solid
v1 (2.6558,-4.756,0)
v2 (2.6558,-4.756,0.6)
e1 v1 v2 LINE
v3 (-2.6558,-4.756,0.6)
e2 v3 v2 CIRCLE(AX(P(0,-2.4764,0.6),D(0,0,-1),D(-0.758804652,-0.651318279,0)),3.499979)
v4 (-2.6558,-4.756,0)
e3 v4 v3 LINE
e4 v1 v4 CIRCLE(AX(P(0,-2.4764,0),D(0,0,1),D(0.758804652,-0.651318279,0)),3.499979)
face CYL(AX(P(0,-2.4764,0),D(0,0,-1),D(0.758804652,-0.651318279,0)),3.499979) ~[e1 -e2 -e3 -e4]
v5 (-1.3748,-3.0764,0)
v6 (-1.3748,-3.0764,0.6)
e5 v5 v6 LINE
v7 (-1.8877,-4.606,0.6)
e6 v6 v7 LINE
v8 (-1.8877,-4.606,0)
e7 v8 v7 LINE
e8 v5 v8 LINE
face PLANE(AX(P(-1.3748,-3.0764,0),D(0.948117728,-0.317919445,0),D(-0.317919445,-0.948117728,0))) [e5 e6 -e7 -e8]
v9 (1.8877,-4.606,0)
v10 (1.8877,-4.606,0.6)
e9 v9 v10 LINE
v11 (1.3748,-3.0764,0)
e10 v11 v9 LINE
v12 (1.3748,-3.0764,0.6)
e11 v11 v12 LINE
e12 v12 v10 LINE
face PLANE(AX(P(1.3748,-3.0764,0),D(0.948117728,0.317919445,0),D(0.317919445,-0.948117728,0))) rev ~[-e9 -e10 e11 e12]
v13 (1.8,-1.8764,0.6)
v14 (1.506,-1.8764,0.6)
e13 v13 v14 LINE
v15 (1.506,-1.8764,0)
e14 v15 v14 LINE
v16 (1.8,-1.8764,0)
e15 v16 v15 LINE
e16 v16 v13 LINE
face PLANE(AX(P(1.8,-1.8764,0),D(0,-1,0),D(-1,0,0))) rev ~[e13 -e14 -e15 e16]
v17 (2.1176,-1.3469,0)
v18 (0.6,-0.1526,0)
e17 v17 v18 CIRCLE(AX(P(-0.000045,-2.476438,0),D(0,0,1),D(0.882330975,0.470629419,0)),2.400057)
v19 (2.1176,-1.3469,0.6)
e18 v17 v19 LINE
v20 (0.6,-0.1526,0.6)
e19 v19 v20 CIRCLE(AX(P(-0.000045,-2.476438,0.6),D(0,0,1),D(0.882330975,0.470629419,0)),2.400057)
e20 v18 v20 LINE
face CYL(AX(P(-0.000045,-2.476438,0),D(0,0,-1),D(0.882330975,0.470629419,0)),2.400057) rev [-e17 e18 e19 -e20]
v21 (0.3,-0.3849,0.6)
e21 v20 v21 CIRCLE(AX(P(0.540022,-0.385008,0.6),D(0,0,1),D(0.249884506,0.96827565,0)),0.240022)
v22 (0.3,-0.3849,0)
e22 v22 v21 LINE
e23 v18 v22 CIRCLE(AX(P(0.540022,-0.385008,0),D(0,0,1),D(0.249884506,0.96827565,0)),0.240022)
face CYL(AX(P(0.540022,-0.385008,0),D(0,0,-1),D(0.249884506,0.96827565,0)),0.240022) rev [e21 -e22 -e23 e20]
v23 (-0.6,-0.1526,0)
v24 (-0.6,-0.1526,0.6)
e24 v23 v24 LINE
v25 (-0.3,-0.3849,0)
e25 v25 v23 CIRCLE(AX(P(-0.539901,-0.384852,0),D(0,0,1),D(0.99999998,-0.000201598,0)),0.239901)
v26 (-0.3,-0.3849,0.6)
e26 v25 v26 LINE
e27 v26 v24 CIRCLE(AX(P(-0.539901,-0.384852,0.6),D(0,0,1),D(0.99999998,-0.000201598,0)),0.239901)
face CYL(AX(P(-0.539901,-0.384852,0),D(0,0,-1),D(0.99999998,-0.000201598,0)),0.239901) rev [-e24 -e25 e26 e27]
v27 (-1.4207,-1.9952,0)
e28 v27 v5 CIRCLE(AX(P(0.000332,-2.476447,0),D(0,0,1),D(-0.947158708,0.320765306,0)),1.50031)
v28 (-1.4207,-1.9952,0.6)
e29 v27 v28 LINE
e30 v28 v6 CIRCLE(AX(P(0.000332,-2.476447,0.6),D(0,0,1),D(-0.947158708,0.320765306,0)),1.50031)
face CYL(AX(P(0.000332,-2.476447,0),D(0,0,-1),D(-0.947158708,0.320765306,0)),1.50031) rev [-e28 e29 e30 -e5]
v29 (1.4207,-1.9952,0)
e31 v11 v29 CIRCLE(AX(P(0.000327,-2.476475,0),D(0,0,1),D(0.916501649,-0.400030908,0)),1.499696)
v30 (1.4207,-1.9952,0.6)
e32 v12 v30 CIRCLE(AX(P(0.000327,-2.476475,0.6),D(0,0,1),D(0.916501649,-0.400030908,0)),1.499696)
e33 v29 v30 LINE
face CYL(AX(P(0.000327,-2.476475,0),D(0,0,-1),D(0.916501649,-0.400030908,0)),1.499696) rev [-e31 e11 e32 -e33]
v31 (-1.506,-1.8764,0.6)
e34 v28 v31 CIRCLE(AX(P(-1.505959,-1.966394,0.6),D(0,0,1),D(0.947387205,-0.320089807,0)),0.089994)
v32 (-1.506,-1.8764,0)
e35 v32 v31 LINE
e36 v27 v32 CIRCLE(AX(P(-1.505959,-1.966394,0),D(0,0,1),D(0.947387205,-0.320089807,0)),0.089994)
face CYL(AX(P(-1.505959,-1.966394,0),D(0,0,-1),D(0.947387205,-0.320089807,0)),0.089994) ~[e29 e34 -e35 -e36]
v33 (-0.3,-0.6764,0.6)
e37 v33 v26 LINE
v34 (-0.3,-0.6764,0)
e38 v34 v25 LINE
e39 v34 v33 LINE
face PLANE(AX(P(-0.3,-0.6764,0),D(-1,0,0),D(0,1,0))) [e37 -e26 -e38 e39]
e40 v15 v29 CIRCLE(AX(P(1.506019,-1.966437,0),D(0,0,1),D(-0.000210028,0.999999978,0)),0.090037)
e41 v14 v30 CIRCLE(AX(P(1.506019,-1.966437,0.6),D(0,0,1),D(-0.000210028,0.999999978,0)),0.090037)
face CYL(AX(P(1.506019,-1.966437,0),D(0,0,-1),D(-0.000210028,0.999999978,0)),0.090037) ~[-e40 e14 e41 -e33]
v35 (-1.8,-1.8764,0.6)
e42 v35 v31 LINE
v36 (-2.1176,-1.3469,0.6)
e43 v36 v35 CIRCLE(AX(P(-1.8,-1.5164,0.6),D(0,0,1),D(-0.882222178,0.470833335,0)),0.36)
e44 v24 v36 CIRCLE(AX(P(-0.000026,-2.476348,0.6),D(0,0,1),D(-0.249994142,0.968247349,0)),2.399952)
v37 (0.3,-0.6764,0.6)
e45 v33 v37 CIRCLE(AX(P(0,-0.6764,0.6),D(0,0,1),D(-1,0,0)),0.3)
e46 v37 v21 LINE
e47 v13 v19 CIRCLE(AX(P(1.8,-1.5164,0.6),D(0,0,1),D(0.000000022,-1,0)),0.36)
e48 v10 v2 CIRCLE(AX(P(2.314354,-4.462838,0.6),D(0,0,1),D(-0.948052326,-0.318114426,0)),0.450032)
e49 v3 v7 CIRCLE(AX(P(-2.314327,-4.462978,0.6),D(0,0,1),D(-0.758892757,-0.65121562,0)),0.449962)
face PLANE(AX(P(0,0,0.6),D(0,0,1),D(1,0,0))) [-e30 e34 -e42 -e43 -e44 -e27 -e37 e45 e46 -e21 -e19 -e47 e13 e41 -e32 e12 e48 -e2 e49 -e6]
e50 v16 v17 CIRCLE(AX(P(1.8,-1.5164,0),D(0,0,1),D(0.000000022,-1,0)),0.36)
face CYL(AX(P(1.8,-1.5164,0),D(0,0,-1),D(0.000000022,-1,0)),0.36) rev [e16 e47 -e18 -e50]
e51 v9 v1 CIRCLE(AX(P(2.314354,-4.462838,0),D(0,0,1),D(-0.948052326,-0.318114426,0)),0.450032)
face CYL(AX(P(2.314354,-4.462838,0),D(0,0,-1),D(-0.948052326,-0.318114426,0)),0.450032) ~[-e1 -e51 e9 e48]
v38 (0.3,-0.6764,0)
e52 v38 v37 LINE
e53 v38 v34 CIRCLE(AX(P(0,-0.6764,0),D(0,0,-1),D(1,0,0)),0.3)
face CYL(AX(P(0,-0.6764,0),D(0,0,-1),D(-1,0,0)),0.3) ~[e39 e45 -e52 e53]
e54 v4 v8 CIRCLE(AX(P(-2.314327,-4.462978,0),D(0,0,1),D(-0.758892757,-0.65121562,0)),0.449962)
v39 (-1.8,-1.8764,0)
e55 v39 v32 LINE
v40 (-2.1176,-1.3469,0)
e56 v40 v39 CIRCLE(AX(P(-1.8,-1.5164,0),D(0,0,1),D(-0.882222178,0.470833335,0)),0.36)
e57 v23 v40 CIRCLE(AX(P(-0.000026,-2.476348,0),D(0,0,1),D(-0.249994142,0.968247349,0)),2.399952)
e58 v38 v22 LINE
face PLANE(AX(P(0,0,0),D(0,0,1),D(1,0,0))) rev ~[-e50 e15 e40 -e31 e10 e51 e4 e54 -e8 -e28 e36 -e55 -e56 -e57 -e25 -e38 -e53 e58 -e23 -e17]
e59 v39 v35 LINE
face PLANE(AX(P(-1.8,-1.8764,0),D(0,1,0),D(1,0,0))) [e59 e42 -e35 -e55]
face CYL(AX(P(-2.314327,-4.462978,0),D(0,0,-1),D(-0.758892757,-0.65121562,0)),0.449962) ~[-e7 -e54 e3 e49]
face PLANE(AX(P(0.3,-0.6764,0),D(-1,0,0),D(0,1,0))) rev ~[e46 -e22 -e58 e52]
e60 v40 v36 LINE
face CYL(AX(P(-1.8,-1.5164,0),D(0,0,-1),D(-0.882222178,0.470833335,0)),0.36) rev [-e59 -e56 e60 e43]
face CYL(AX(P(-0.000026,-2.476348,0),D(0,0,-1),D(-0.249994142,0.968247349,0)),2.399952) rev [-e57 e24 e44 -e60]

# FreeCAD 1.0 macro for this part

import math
import FreeCAD as App
import Part
import Sketcher
Q = App.Units.Quantity

doc = App.newDocument("Part")
body = doc.addObject("PartDesign::Body", "Body")

# Sketch on XY plane
sketch1 = doc.addObject("Sketcher::SketchObject", "Sketch")
body.addObject(sketch1)
sketch1.AttachmentSupport = (doc.XY_Plane, [""])
sketch1.MapMode = "FlatFace"
sketch1.addGeometry(Part.ArcOfCircle(Part.Circle(App.Vector(-2.31, -4.46, 0), App.Vector(0, 0, 1), 0.45), math.radians(-139), math.radians(-19)), False)
sketch1.addGeometry(Part.LineSegment(App.Vector(-1.89, -4.61, 0), App.Vector(-1.37, -3.08, 0)), False)
sketch1.addGeometry(Part.ArcOfCircle(Part.Circle(App.Vector(0, -2.48, 0), App.Vector(0, 0, 1), 1.5), math.radians(161), math.radians(204)), False)
sketch1.addGeometry(Part.ArcOfCircle(Part.Circle(App.Vector(-1.51, -1.97, 0), App.Vector(0, 0, 1), 0.09), math.radians(-19), math.radians(90)), False)
sketch1.addGeometry(Part.LineSegment(App.Vector(-1.51, -1.88, 0), App.Vector(-1.8, -1.88, 0)), False)
sketch1.addGeometry(Part.ArcOfCircle(Part.Circle(App.Vector(-1.8, -1.52, 0), App.Vector(0, 0, 1), 0.36), math.radians(152), math.radians(270)), False)
sketch1.addGeometry(Part.ArcOfCircle(Part.Circle(App.Vector(0, -2.48, 0), App.Vector(0, 0, 1), 2.4), math.radians(104), math.radians(152)), False)
sketch1.addGeometry(Part.ArcOfCircle(Part.Circle(App.Vector(-0.54, -0.38, 0), App.Vector(0, 0, 1), 0.24), math.radians(0), math.radians(104)), False)
sketch1.addGeometry(Part.LineSegment(App.Vector(-0.3, -0.38, 0), App.Vector(-0.3, -0.68, 0)), False)
sketch1.addGeometry(Part.ArcOfCircle(Part.Circle(App.Vector(0, -0.68, 0), App.Vector(0, 0, 1), 0.3), math.radians(180), math.radians(360)), False)
sketch1.addGeometry(Part.LineSegment(App.Vector(0.3, -0.68, 0), App.Vector(0.3, -0.38, 0)), False)
sketch1.addGeometry(Part.ArcOfCircle(Part.Circle(App.Vector(0.54, -0.38, 0), App.Vector(0, 0, 1), 0.24), math.radians(76), math.radians(180)), False)
sketch1.addGeometry(Part.ArcOfCircle(Part.Circle(App.Vector(0, -2.48, 0), App.Vector(0, 0, 1), 2.4), math.radians(28), math.radians(76)), False)
sketch1.addGeometry(Part.ArcOfCircle(Part.Circle(App.Vector(1.8, -1.52, 0), App.Vector(0, 0, 1), 0.36), math.radians(-90), math.radians(28)), False)
sketch1.addGeometry(Part.LineSegment(App.Vector(1.8, -1.88, 0), App.Vector(1.51, -1.88, 0)), False)
sketch1.addGeometry(Part.ArcOfCircle(Part.Circle(App.Vector(1.51, -1.97, 0), App.Vector(0, 0, 1), 0.09), math.radians(90), math.radians(199)), False)
sketch1.addGeometry(Part.ArcOfCircle(Part.Circle(App.Vector(0, -2.48, 0), App.Vector(0, 0, 1), 1.5), math.radians(-24), math.radians(19)), False)
sketch1.addGeometry(Part.LineSegment(App.Vector(1.37, -3.08, 0), App.Vector(1.89, -4.61, 0)), False)
sketch1.addGeometry(Part.ArcOfCircle(Part.Circle(App.Vector(2.31, -4.46, 0), App.Vector(0, 0, 1), 0.45), math.radians(-161), math.radians(-41)), False)
sketch1.addGeometry(Part.ArcOfCircle(Part.Circle(App.Vector(0, -2.48, 0), App.Vector(0, 0, 1), 3.5), math.radians(-41), math.radians(221)), False)
sketch1.addConstraint(Sketcher.Constraint("Tangent", 0, 2, 1, 1))
sketch1.addConstraint(Sketcher.Constraint("Coincident", 1, 2, 2, 2))
sketch1.addConstraint(Sketcher.Constraint("Coincident", 2, 1, 3, 1))
sketch1.addConstraint(Sketcher.Constraint("Tangent", 3, 2, 4, 1))
sketch1.addConstraint(Sketcher.Constraint("Tangent", 4, 2, 5, 2))
sketch1.addConstraint(Sketcher.Constraint("Tangent", 5, 1, 6, 2))
sketch1.addConstraint(Sketcher.Constraint("Tangent", 6, 1, 7, 2))
sketch1.addConstraint(Sketcher.Constraint("Tangent", 7, 1, 8, 1))
sketch1.addConstraint(Sketcher.Constraint("Tangent", 8, 2, 9, 1))
sketch1.addConstraint(Sketcher.Constraint("Tangent", 9, 2, 10, 1))
sketch1.addConstraint(Sketcher.Constraint("Tangent", 10, 2, 11, 2))
sketch1.addConstraint(Sketcher.Constraint("Tangent", 11, 1, 12, 2))
sketch1.addConstraint(Sketcher.Constraint("Tangent", 12, 1, 13, 2))
sketch1.addConstraint(Sketcher.Constraint("Tangent", 13, 1, 14, 1))
sketch1.addConstraint(Sketcher.Constraint("Tangent", 14, 2, 15, 1))
sketch1.addConstraint(Sketcher.Constraint("Coincident", 15, 2, 16, 2))
sketch1.addConstraint(Sketcher.Constraint("Coincident", 16, 1, 17, 1))
sketch1.addConstraint(Sketcher.Constraint("Tangent", 17, 2, 18, 1))
sketch1.addConstraint(Sketcher.Constraint("Tangent", 18, 2, 19, 1))
sketch1.addConstraint(Sketcher.Constraint("Tangent", 19, 2, 0, 1))
sketch1.addConstraint(Sketcher.Constraint("Horizontal", 4))
sketch1.addConstraint(Sketcher.Constraint("Vertical", 8))
sketch1.addConstraint(Sketcher.Constraint("Vertical", 10))
sketch1.addConstraint(Sketcher.Constraint("Horizontal", 14))
sketch1.addConstraint(Sketcher.Constraint("Coincident", 6, 3, 2, 3))
sketch1.addConstraint(Sketcher.Constraint("Coincident", 12, 3, 2, 3))
sketch1.addConstraint(Sketcher.Constraint("Coincident", 16, 3, 2, 3))
sketch1.addConstraint(Sketcher.Constraint("Coincident", 19, 3, 2, 3))
sketch1.addConstraint(Sketcher.Constraint("Equal", 7, 11))
sketch1.addConstraint(Sketcher.Constraint("Equal", 6, 12))
sketch1.addConstraint(Sketcher.Constraint("Equal", 5, 13))
sketch1.addConstraint(Sketcher.Constraint("Equal", 3, 15))
sketch1.addConstraint(Sketcher.Constraint("Equal", 2, 16))
sketch1.addConstraint(Sketcher.Constraint("Equal", 0, 18))
sketch1.addConstraint(Sketcher.Constraint("Symmetric", 7, 3, 11, 3, -2))
sketch1.addConstraint(Sketcher.Constraint("Symmetric", 0, 2, 17, 2, -2))
sketch1.addConstraint(Sketcher.Constraint("Horizontal", 5, 3, 13, 3))
sketch1.addConstraint(Sketcher.Constraint("Horizontal", 2, 1, 15, 2))
sketch1.addConstraint(Sketcher.Constraint("Radius", 2, Q("1.5 mm")))
sketch1.addConstraint(Sketcher.Constraint("Radius", 6, Q("2.4 mm")))
sketch1.addConstraint(Sketcher.Constraint("Radius", 9, Q("0.3 mm")))
sketch1.addConstraint(Sketcher.Constraint("Radius", 19, Q("3.5 mm")))
sketch1.addConstraint(Sketcher.Constraint("Radius", 0, Q("0.45 mm")))
sketch1.addConstraint(Sketcher.Constraint("Radius", 3, Q("0.09 mm")))
sketch1.addConstraint(Sketcher.Constraint("Radius", 5, Q("0.36 mm")))
sketch1.addConstraint(Sketcher.Constraint("Radius", 7, Q("0.24 mm")))
sketch1.addConstraint(Sketcher.Constraint("DistanceY", 1, 2, 2, 3, Q("0.6 mm")))
sketch1.addConstraint(Sketcher.Constraint("DistanceY", 2, 3, 3, 2, Q("0.6 mm")))
sketch1.addConstraint(Sketcher.Constraint("DistanceY", 2, 3, 9, 3, Q("1.8 mm")))
sketch1.addConstraint(Sketcher.Constraint("DistanceY", 18, 2, 17, 2, Q("0.15 mm")))
sketch1.addConstraint(Sketcher.Constraint("DistanceY", 0, 3, -1, 1, Q("4.463 mm")))
sketch1.addConstraint(Sketcher.Constraint("DistanceX", 2, 1, 1, 2, Q("0.046 mm")))
pad1 = doc.addObject("PartDesign::Pad", "Pad")
body.addObject(pad1)
pad1.Profile = sketch1
pad1.Length = 0.6

doc.recompute()
